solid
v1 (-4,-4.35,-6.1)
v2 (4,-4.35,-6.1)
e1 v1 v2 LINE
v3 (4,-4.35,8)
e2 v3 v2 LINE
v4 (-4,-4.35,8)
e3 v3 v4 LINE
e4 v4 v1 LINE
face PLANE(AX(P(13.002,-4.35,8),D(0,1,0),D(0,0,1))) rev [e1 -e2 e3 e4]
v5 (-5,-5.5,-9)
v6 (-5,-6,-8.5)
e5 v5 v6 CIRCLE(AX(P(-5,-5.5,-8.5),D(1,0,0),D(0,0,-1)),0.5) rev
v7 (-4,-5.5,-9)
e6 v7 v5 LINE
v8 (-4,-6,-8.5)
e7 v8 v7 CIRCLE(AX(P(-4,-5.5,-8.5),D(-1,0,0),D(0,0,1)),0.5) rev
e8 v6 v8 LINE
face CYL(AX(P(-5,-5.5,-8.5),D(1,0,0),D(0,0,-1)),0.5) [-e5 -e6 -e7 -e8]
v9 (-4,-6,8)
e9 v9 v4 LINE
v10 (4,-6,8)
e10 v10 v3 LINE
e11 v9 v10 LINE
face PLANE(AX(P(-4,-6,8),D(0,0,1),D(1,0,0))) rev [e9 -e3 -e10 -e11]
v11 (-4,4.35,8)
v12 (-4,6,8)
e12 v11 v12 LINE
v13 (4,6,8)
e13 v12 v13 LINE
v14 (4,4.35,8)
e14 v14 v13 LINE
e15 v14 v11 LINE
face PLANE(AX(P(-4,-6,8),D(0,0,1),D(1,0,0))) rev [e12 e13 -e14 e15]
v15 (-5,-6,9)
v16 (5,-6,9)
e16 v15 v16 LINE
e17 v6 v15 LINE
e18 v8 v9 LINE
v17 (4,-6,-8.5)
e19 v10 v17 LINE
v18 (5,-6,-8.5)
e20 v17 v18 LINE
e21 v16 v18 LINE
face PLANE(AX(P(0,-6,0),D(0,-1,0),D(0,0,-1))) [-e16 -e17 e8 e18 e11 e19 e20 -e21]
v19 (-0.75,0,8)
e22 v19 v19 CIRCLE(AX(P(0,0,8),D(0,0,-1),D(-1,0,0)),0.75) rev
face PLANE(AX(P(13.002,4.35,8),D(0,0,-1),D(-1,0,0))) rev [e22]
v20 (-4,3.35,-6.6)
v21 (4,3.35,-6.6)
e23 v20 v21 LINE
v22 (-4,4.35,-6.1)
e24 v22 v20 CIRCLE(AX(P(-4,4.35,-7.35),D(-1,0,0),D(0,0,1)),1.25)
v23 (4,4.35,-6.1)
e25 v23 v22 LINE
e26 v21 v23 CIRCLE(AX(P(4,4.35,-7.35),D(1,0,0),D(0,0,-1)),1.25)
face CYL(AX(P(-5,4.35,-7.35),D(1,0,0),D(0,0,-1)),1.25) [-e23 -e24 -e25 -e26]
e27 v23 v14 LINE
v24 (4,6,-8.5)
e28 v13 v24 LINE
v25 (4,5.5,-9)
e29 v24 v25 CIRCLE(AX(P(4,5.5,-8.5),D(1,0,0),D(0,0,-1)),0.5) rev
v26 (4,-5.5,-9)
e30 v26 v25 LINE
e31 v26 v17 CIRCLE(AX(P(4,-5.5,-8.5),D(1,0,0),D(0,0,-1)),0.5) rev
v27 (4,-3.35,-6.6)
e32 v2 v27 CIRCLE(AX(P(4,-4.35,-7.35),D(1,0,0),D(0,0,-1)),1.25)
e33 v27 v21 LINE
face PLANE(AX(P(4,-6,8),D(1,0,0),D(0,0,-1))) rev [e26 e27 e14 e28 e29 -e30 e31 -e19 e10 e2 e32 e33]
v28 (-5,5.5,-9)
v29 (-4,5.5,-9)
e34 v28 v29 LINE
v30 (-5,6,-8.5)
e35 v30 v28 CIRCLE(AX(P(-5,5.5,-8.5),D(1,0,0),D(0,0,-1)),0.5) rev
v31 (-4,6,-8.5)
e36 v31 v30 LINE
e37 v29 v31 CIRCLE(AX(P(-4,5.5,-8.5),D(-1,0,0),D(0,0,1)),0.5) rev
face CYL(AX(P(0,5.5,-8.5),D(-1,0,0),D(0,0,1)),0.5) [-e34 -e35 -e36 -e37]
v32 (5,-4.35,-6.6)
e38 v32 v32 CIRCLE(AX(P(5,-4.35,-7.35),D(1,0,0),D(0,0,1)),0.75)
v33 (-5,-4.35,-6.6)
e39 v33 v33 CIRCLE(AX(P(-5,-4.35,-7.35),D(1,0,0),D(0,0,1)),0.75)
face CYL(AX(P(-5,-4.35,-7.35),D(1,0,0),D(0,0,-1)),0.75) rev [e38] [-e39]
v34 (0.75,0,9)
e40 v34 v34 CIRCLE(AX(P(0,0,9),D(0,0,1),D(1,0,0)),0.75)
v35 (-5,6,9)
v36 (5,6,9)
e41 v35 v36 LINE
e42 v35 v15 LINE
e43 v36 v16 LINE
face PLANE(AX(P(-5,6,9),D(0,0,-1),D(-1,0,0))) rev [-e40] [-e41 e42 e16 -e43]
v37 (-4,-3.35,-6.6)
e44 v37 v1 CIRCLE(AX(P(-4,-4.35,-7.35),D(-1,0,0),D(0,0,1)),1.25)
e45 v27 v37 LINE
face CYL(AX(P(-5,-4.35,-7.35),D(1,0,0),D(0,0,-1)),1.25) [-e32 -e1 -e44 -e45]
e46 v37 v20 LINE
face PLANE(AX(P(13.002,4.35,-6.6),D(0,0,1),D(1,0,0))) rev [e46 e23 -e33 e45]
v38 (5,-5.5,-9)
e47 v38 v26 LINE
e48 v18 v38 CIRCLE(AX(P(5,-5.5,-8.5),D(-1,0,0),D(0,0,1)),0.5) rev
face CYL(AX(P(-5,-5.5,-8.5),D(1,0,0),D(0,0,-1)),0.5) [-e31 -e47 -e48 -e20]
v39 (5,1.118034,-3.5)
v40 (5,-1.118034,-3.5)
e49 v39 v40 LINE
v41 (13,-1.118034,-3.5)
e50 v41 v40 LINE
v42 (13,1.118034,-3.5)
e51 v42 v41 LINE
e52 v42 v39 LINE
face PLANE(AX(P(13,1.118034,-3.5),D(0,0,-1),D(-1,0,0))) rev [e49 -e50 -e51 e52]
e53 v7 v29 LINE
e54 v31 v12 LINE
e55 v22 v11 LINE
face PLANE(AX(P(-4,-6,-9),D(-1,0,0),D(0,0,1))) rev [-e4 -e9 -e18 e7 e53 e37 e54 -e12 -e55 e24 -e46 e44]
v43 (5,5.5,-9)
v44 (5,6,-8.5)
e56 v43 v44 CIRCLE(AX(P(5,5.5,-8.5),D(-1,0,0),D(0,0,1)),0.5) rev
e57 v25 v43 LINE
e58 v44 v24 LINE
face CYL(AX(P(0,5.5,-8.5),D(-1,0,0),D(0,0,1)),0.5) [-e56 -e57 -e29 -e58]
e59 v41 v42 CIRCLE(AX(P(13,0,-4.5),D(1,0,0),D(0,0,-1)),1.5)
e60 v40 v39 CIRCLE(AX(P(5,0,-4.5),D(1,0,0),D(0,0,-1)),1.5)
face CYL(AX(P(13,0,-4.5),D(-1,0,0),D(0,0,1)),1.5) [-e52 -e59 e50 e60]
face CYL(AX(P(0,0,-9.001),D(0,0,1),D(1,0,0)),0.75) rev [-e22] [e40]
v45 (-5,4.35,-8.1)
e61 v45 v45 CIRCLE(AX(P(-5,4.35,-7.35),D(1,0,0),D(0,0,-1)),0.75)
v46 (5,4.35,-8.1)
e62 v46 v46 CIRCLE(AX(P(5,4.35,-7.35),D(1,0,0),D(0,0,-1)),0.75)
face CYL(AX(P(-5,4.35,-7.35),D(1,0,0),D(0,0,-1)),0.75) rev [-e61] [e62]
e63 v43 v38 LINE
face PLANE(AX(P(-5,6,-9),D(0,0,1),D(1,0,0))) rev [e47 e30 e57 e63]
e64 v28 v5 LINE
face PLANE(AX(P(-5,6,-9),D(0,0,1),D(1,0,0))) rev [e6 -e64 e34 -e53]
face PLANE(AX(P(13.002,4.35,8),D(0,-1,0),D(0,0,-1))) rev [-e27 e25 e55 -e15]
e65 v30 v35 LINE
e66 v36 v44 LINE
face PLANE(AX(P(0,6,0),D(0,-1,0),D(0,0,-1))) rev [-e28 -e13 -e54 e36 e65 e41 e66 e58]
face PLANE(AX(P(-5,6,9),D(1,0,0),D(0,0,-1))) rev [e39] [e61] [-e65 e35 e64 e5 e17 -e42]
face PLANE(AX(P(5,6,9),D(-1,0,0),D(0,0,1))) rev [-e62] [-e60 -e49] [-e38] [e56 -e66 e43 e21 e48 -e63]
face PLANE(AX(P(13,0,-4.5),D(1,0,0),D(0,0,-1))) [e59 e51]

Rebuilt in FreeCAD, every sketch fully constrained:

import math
import FreeCAD as App
import Part
import Sketcher
from FreeCAD import Vector


def edges_at(feature, points):
    """Names of the edges that pass closest to the given points."""
    edges = feature.Shape.Edges
    near = lambda p: min(range(len(edges)), key=lambda i: edges[i].distToShape(Part.Vertex(*p))[0])
    return sorted({f"Edge{near(p) + 1}" for p in points})

doc = App.newDocument("Part")
params = doc.addObject("Spreadsheet::Sheet", "Params")
for row, (alias, value) in enumerate([
    ("sketch1_width", "10 mm"),
    ("sketch1_height", "18 mm"),
    ("pad1_length", "12 mm"),
    ("sketch2_radius", "1.5 mm"),
    ("pad2_length", "8 mm"),
    ("fillet_radius", "0.5 mm"),
    ("sketch3_width", "8 mm"),
    ("sketch3_height", "17 mm"),
    ("sketch4_diameter", "2.5 mm"),
    ("pad3_length", "9 mm"),
    ("sketch5_diameter", "2.5 mm"),
    ("pad4_length", "9 mm"),
    ("sketch6_diameter", "1.5 mm"),
    ("sketch7_diameter", "1.5 mm"),
    ("sketch8_width", "8.7 mm"),
    ("sketch8_height", "14.6 mm"),
], start=1):
    params.set(f"A{row}", alias)
    params.set(f"B{row}", "=" + value)
    params.setAlias(f"B{row}", alias)

body = doc.addObject("PartDesign::Body", "Body")

# Sketch on XZ plane
sketch1 = doc.addObject("Sketcher::SketchObject", "Sketch")
body.addObject(sketch1)
sketch1.AttachmentSupport = (doc.XZ_Plane, [""])
sketch1.MapMode = "FlatFace"
sketch1.addGeometry(Part.LineSegment(Vector(-5, -9, 0), Vector(-5, 9, 0)), False)
sketch1.addGeometry(Part.LineSegment(Vector(-5, 9, 0), Vector(5, 9, 0)), False)
sketch1.addGeometry(Part.LineSegment(Vector(5, 9, 0), Vector(5, -9, 0)), False)
sketch1.addGeometry(Part.LineSegment(Vector(5, -9, 0), Vector(-5, -9, 0)), False)
sketch1.addConstraint(Sketcher.Constraint("Coincident", 0, 2, 1, 1))
sketch1.addConstraint(Sketcher.Constraint("Coincident", 1, 2, 2, 1))
sketch1.addConstraint(Sketcher.Constraint("Coincident", 2, 2, 3, 1))
sketch1.addConstraint(Sketcher.Constraint("Coincident", 3, 2, 0, 1))
sketch1.addConstraint(Sketcher.Constraint("Vertical", 0))
sketch1.addConstraint(Sketcher.Constraint("Horizontal", 1))
sketch1.addConstraint(Sketcher.Constraint("Vertical", 2))
sketch1.addConstraint(Sketcher.Constraint("Horizontal", 3))
sketch1.addConstraint(Sketcher.Constraint("Symmetric", 0, 2, 2, 2, -1, 1))
sketch1.addConstraint(Sketcher.Constraint("DistanceX", 1, 1, 1, 2, 10.0))
sketch1.addConstraint(Sketcher.Constraint("DistanceY", 0, 1, 0, 2, 18.0))
sketch1.setExpression("Constraints[9]", "Params.sketch1_width")
sketch1.setExpression("Constraints[10]", "Params.sketch1_height")
pad1 = doc.addObject("PartDesign::Pad", "Pad")
body.addObject(pad1)
pad1.Profile = sketch1
pad1.setExpression("Length", "Params.pad1_length")
pad1.Midplane = True

# Sketch on YZ plane
sketch2 = doc.addObject("Sketcher::SketchObject", "Sketch001")
body.addObject(sketch2)
sketch2.AttachmentSupport = (doc.YZ_Plane, [""])
sketch2.MapMode = "FlatFace"
sketch2.AttachmentOffset = App.Placement(Vector(0, 0, 5), App.Rotation())
sketch2.addGeometry(Part.LineSegment(Vector(1.118034, -3.5, 0), Vector(-1.118034, -3.5, 0)), False)
sketch2.addGeometry(Part.ArcOfCircle(Part.Circle(Vector(0, -4.5, 0), Vector(0, 0, 1), 1.5), math.radians(138.189685), math.radians(401.810315)), False)
sketch2.addConstraint(Sketcher.Constraint("Coincident", 0, 1, 1, 2))
sketch2.addConstraint(Sketcher.Constraint("Coincident", 1, 1, 0, 2))
sketch2.addConstraint(Sketcher.Constraint("Horizontal", 0))
sketch2.addConstraint(Sketcher.Constraint("PointOnObject", 1, 3, -2))
sketch2.addConstraint(Sketcher.Constraint("Radius", 1, 1.5))
sketch2.addConstraint(Sketcher.Constraint("DistanceY", 1, 3, 0, 1, 1.0))
sketch2.addConstraint(Sketcher.Constraint("DistanceY", 1, 3, -1, 1, 4.5))
sketch2.setExpression("Constraints[4]", "Params.sketch2_radius")
pad2 = doc.addObject("PartDesign::Pad", "Pad001")
body.addObject(pad2)
pad2.Profile = sketch2
pad2.setExpression("Length", "Params.pad2_length")
doc.recompute()

fillet = doc.addObject("PartDesign::Fillet", "Fillet")
body.addObject(fillet)
fillet.Base = (pad2, edges_at(pad2, [(0, -6, -9), (0, 6, -9)]))
fillet.setExpression("Radius", "Params.fillet_radius")

# Sketch on XZ plane
sketch3 = doc.addObject("Sketcher::SketchObject", "Sketch002")
body.addObject(sketch3)
sketch3.AttachmentSupport = (doc.XZ_Plane, [""])
sketch3.MapMode = "FlatFace"
sketch3.AttachmentOffset = App.Placement(Vector(0, 0, -6), App.Rotation())
sketch3.addGeometry(Part.LineSegment(Vector(-4, -9, 0), Vector(-4, 8, 0)), False)
sketch3.addGeometry(Part.LineSegment(Vector(-4, 8, 0), Vector(4, 8, 0)), False)
sketch3.addGeometry(Part.LineSegment(Vector(4, 8, 0), Vector(4, -9, 0)), False)
sketch3.addGeometry(Part.LineSegment(Vector(4, -9, 0), Vector(-4, -9, 0)), False)
sketch3.addConstraint(Sketcher.Constraint("Coincident", 0, 2, 1, 1))
sketch3.addConstraint(Sketcher.Constraint("Coincident", 1, 2, 2, 1))
sketch3.addConstraint(Sketcher.Constraint("Coincident", 2, 2, 3, 1))
sketch3.addConstraint(Sketcher.Constraint("Coincident", 3, 2, 0, 1))
sketch3.addConstraint(Sketcher.Constraint("Vertical", 0))
sketch3.addConstraint(Sketcher.Constraint("Horizontal", 1))
sketch3.addConstraint(Sketcher.Constraint("Vertical", 2))
sketch3.addConstraint(Sketcher.Constraint("Horizontal", 3))
sketch3.addConstraint(Sketcher.Constraint("DistanceX", 1, 1, 1, 2, 8.0))
sketch3.addConstraint(Sketcher.Constraint("DistanceY", 0, 1, 0, 2, 17.0))
sketch3.addConstraint(Sketcher.Constraint("DistanceX", 0, 2, -1, 1, 4.0))
sketch3.addConstraint(Sketcher.Constraint("DistanceY", -1, 1, 0, 2, 8.0))
sketch3.setExpression("Constraints[8]", "Params.sketch3_width")
sketch3.setExpression("Constraints[9]", "Params.sketch3_height")
pocket1 = doc.addObject("PartDesign::Pocket", "Pocket")
body.addObject(pocket1)
pocket1.Profile = sketch3
pocket1.Type = "ThroughAll"
pocket1.Reversed = True

# Sketch on YZ plane
sketch4 = doc.addObject("Sketcher::SketchObject", "Sketch003")
body.addObject(sketch4)
sketch4.AttachmentSupport = (doc.YZ_Plane, [""])
sketch4.MapMode = "FlatFace"
sketch4.AttachmentOffset = App.Placement(Vector(0, 0, 5), App.Rotation())
sketch4.addGeometry(Part.Circle(Vector(4.35, -7.35, 0), Vector(0, 0, 1), 1.25), False)
sketch4.addConstraint(Sketcher.Constraint("Diameter", 0, 2.5))
sketch4.addConstraint(Sketcher.Constraint("DistanceX", -1, 1, 0, 3, 4.35))
sketch4.addConstraint(Sketcher.Constraint("DistanceY", 0, 3, -1, 1, 7.35))
sketch4.setExpression("Constraints[0]", "Params.sketch4_diameter")
pad3 = doc.addObject("PartDesign::Pad", "Pad002")
body.addObject(pad3)
pad3.Profile = sketch4
pad3.setExpression("Length", "Params.pad3_length")
pad3.Reversed = True

# Sketch on YZ plane
sketch5 = doc.addObject("Sketcher::SketchObject", "Sketch004")
body.addObject(sketch5)
sketch5.AttachmentSupport = (doc.YZ_Plane, [""])
sketch5.MapMode = "FlatFace"
sketch5.AttachmentOffset = App.Placement(Vector(0, 0, 5), App.Rotation())
sketch5.addGeometry(Part.Circle(Vector(-4.35, -7.35, 0), Vector(0, 0, 1), 1.25), False)
sketch5.addConstraint(Sketcher.Constraint("Diameter", 0, 2.5))
sketch5.addConstraint(Sketcher.Constraint("DistanceX", 0, 3, -1, 1, 4.35))
sketch5.addConstraint(Sketcher.Constraint("DistanceY", 0, 3, -1, 1, 7.35))
sketch5.setExpression("Constraints[0]", "Params.sketch5_diameter")
pad4 = doc.addObject("PartDesign::Pad", "Pad003")
body.addObject(pad4)
pad4.Profile = sketch5
pad4.setExpression("Length", "Params.pad4_length")
pad4.Reversed = True

# Sketch on YZ plane
sketch6 = doc.addObject("Sketcher::SketchObject", "Sketch005")
body.addObject(sketch6)
sketch6.AttachmentSupport = (doc.YZ_Plane, [""])
sketch6.MapMode = "FlatFace"
sketch6.AttachmentOffset = App.Placement(Vector(0, 0, 5), App.Rotation())
sketch6.addGeometry(Part.Circle(Vector(4.35, -7.35, 0), Vector(0, 0, 1), 0.75), False)
sketch6.addGeometry(Part.Circle(Vector(-4.35, -7.35, 0), Vector(0, 0, 1), 0.75), False)
sketch6.addConstraint(Sketcher.Constraint("Equal", 0, 1))
sketch6.addConstraint(Sketcher.Constraint("Symmetric", 0, 3, 1, 3, -2))
sketch6.addConstraint(Sketcher.Constraint("Diameter", 0, 1.5))
sketch6.addConstraint(Sketcher.Constraint("DistanceX", 1, 3, 0, 3, 8.7))
sketch6.addConstraint(Sketcher.Constraint("DistanceY", 0, 3, -1, 1, 7.35))
sketch6.setExpression("Constraints[2]", "Params.sketch6_diameter")
pocket2 = doc.addObject("PartDesign::Pocket", "Pocket001")
body.addObject(pocket2)
pocket2.Profile = sketch6
pocket2.Type = "ThroughAll"

# Sketch on XY plane
sketch7 = doc.addObject("Sketcher::SketchObject", "Sketch006")
body.addObject(sketch7)
sketch7.AttachmentSupport = (doc.XY_Plane, [""])
sketch7.MapMode = "FlatFace"
sketch7.AttachmentOffset = App.Placement(Vector(0, 0, 9), App.Rotation())
sketch7.addGeometry(Part.Circle(Vector(0, 0, 0), Vector(0, 0, 1), 0.75), False)
sketch7.addConstraint(Sketcher.Constraint("Coincident", 0, 3, -1, 1))
sketch7.addConstraint(Sketcher.Constraint("Diameter", 0, 1.5))
sketch7.setExpression("Constraints[1]", "Params.sketch7_diameter")
pocket3 = doc.addObject("PartDesign::Pocket", "Pocket002")
body.addObject(pocket3)
pocket3.Profile = sketch7
pocket3.Type = "UpToFirst"

# Sketch on YZ plane
sketch8 = doc.addObject("Sketcher::SketchObject", "Sketch007")
body.addObject(sketch8)
sketch8.AttachmentSupport = (doc.YZ_Plane, [""])
sketch8.MapMode = "FlatFace"
sketch8.AttachmentOffset = App.Placement(Vector(0, 0, -4), App.Rotation())
sketch8.addGeometry(Part.LineSegment(Vector(4.35, 8, 0), Vector(-4.35, 8, 0)), False)
sketch8.addGeometry(Part.LineSegment(Vector(-4.35, 8, 0), Vector(-4.35, -6.6, 0)), False)
sketch8.addGeometry(Part.LineSegment(Vector(-4.35, -6.6, 0), Vector(4.35, -6.6, 0)), False)
sketch8.addGeometry(Part.LineSegment(Vector(4.35, -6.6, 0), Vector(4.35, 8, 0)), False)
sketch8.addConstraint(Sketcher.Constraint("Coincident", 0, 2, 1, 1))
sketch8.addConstraint(Sketcher.Constraint("Coincident", 1, 2, 2, 1))
sketch8.addConstraint(Sketcher.Constraint("Coincident", 2, 2, 3, 1))
sketch8.addConstraint(Sketcher.Constraint("Coincident", 3, 2, 0, 1))
sketch8.addConstraint(Sketcher.Constraint("Horizontal", 0))
sketch8.addConstraint(Sketcher.Constraint("Vertical", 1))
sketch8.addConstraint(Sketcher.Constraint("Horizontal", 2))
sketch8.addConstraint(Sketcher.Constraint("Vertical", 3))
sketch8.addConstraint(Sketcher.Constraint("DistanceX", 0, 2, 0, 1, 8.7))
sketch8.addConstraint(Sketcher.Constraint("DistanceY", 1, 2, 1, 1, 14.6))
sketch8.addConstraint(Sketcher.Constraint("DistanceY", -1, 1, 0, 2, 8.0))
sketch8.addConstraint(Sketcher.Constraint("DistanceX", 0, 2, -1, 1, 4.35))
sketch8.setExpression("Constraints[8]", "Params.sketch8_width")
sketch8.setExpression("Constraints[9]", "Params.sketch8_height")
pad5 = doc.addObject("PartDesign::Pad", "Pad004")
body.addObject(pad5)
pad5.Profile = sketch8
pad5.Type = "UpToFirst"

doc.recompute()
